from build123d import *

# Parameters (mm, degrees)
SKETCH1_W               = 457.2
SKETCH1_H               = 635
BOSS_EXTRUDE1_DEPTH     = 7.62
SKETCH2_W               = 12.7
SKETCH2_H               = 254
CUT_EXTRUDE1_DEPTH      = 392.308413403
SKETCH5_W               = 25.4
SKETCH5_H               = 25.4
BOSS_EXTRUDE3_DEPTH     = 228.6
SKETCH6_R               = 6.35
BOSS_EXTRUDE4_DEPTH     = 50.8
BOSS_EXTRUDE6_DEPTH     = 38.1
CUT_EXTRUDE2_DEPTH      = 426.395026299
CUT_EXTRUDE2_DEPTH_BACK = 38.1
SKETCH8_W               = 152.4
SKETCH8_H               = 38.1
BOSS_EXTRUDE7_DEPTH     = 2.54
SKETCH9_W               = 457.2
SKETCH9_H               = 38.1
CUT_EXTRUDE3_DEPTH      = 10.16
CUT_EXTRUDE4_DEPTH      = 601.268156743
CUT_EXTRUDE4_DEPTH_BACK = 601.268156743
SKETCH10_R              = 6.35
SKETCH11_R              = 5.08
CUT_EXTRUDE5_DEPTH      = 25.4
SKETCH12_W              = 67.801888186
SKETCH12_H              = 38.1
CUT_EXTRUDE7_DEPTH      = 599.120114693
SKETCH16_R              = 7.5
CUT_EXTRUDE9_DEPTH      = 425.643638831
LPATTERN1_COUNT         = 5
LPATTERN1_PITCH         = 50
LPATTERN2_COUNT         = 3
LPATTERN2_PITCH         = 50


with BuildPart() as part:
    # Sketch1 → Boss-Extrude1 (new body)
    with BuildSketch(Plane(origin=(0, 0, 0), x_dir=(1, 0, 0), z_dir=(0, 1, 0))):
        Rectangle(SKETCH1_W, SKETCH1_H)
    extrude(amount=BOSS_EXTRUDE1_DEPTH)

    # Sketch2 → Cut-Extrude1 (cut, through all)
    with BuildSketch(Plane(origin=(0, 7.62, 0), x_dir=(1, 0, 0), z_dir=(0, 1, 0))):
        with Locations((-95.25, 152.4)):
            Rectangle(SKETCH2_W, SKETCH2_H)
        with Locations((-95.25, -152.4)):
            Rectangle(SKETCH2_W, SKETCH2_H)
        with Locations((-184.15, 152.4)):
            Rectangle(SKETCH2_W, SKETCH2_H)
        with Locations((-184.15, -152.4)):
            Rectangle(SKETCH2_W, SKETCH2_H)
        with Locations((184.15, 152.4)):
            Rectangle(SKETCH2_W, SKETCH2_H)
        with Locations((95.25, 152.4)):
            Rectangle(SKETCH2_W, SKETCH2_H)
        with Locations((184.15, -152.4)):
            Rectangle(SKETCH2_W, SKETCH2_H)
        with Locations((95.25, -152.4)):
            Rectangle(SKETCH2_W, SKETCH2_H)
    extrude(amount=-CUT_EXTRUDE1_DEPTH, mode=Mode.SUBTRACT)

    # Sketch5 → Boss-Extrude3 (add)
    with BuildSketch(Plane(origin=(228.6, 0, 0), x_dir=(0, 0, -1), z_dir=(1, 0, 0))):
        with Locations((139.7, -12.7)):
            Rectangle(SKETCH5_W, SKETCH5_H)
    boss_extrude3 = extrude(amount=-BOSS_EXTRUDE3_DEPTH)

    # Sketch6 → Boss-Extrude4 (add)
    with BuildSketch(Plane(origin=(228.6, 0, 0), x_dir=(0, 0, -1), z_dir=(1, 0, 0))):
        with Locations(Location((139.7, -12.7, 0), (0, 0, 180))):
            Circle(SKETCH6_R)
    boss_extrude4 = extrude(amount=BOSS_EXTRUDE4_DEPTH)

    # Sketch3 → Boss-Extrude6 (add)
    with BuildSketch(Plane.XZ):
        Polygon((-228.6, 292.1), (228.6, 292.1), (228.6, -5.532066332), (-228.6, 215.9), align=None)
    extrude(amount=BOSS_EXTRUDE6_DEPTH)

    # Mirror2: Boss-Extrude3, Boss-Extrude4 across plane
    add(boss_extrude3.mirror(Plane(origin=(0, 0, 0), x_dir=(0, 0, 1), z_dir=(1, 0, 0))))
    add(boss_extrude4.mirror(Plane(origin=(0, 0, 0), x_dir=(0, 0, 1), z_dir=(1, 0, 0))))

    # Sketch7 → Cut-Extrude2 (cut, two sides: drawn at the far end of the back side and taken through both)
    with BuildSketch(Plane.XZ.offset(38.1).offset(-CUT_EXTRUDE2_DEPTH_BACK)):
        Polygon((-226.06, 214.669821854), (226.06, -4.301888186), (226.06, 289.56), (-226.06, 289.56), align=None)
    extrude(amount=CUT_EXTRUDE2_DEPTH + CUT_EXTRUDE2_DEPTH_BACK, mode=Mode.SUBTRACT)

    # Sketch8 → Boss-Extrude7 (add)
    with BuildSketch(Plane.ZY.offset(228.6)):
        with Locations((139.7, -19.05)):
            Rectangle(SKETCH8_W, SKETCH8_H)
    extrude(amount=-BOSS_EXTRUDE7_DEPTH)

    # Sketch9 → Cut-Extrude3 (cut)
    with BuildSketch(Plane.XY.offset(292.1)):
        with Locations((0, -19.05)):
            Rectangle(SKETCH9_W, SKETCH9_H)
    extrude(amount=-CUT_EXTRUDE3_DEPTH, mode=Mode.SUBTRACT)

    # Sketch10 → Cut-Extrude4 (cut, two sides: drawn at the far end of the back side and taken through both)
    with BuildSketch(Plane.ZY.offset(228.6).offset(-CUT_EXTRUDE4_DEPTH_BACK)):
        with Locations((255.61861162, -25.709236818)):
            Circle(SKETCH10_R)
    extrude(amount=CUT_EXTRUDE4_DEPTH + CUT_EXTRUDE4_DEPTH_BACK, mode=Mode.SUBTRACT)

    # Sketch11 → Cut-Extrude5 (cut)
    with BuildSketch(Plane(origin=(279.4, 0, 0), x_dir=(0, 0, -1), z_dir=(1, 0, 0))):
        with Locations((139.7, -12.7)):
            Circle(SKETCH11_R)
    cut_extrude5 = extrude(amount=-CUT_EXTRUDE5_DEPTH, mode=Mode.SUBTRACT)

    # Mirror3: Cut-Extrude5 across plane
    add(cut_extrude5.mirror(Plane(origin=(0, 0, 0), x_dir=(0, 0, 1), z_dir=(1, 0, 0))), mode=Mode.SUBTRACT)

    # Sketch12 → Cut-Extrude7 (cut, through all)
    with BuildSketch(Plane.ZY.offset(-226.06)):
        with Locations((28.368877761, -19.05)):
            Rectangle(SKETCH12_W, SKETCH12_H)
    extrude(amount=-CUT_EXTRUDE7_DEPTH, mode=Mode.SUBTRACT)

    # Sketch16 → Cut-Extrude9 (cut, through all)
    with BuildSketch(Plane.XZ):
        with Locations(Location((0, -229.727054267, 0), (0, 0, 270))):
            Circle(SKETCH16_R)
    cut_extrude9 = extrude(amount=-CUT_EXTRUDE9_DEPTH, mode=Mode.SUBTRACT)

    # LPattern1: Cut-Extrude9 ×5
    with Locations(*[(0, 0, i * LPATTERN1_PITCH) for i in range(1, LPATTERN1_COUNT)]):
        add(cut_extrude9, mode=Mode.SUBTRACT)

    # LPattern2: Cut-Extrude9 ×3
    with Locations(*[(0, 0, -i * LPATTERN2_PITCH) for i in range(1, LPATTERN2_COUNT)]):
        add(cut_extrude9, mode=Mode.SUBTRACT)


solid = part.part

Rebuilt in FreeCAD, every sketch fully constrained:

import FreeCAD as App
import Part
import Sketcher
Q = App.Units.Quantity

doc = App.newDocument("Part")
body = doc.addObject("PartDesign::Body", "Body")

sketch1 = doc.addObject("Sketcher::SketchObject", "Sketch")
body.addObject(sketch1)
sketch1.AttachmentSupport = (doc.XZ_Plane, [""])
sketch1.MapMode = "FlatFace"
sketch1.addGeometry([
    Part.LineSegment(App.Vector(-229, -318, 0), App.Vector(-229, 318, 0)),
    Part.LineSegment(App.Vector(-229, 318, 0), App.Vector(229, 318, 0)),
    Part.LineSegment(App.Vector(229, 318, 0), App.Vector(229, -318, 0)),
    Part.LineSegment(App.Vector(229, -318, 0), App.Vector(-229, -318, 0)),
], False)
sketch1.addConstraint([
    Sketcher.Constraint("Coincident", 0, 2, 1, 1),
    Sketcher.Constraint("Coincident", 1, 2, 2, 1),
    Sketcher.Constraint("Coincident", 2, 2, 3, 1),
    Sketcher.Constraint("Coincident", 3, 2, 0, 1),
    Sketcher.Constraint("Vertical", 0),
    Sketcher.Constraint("Horizontal", 1),
    Sketcher.Constraint("Vertical", 2),
    Sketcher.Constraint("Horizontal", 3),
    Sketcher.Constraint("Symmetric", 0, 2, 2, 2, -1, 1),
    Sketcher.Constraint("DistanceX", 1, 1, 1, 2, Q("18 in")),
    Sketcher.Constraint("DistanceY", 0, 1, 0, 2, Q("25 in")),
])
pad1 = doc.addObject("PartDesign::Pad", "Pad")
body.addObject(pad1)
pad1.Profile = sketch1
pad1.Length = Q("0.3 in")
pad1.Reversed = True

sketch2 = doc.addObject("Sketcher::SketchObject", "Sketch001")
body.addObject(sketch2)
sketch2.AttachmentSupport = (doc.XZ_Plane, [""])
sketch2.MapMode = "FlatFace"
sketch2.AttachmentOffset = App.Placement(App.Vector(0, 0, -0.3 * 25.4), App.Rotation())
sketch2.addGeometry([
    Part.LineSegment(App.Vector(-102, -279, 0), App.Vector(-102, -25, 0)),
    Part.LineSegment(App.Vector(-102, -25, 0), App.Vector(-89, -25, 0)),
    Part.LineSegment(App.Vector(-89, -25, 0), App.Vector(-89, -279, 0)),
    Part.LineSegment(App.Vector(-89, -279, 0), App.Vector(-102, -279, 0)),
    Part.LineSegment(App.Vector(-102, 25, 0), App.Vector(-102, 279, 0)),
    Part.LineSegment(App.Vector(-102, 279, 0), App.Vector(-89, 279, 0)),
    Part.LineSegment(App.Vector(-89, 279, 0), App.Vector(-89, 25, 0)),
    Part.LineSegment(App.Vector(-89, 25, 0), App.Vector(-102, 25, 0)),
    Part.LineSegment(App.Vector(-190, -279, 0), App.Vector(-190, -25, 0)),
    Part.LineSegment(App.Vector(-190, -25, 0), App.Vector(-178, -25, 0)),
    Part.LineSegment(App.Vector(-178, -25, 0), App.Vector(-178, -279, 0)),
    Part.LineSegment(App.Vector(-178, -279, 0), App.Vector(-190, -279, 0)),
    Part.LineSegment(App.Vector(-190, 25, 0), App.Vector(-190, 279, 0)),
    Part.LineSegment(App.Vector(-190, 279, 0), App.Vector(-178, 279, 0)),
    Part.LineSegment(App.Vector(-178, 279, 0), App.Vector(-178, 25, 0)),
    Part.LineSegment(App.Vector(-178, 25, 0), App.Vector(-190, 25, 0)),
    Part.LineSegment(App.Vector(178, -279, 0), App.Vector(178, -25, 0)),
    Part.LineSegment(App.Vector(178, -25, 0), App.Vector(190, -25, 0)),
    Part.LineSegment(App.Vector(190, -25, 0), App.Vector(190, -279, 0)),
    Part.LineSegment(App.Vector(190, -279, 0), App.Vector(178, -279, 0)),
    Part.LineSegment(App.Vector(89, -279, 0), App.Vector(89, -25, 0)),
    Part.LineSegment(App.Vector(89, -25, 0), App.Vector(102, -25, 0)),
    Part.LineSegment(App.Vector(102, -25, 0), App.Vector(102, -279, 0)),
    Part.LineSegment(App.Vector(102, -279, 0), App.Vector(89, -279, 0)),
    Part.LineSegment(App.Vector(178, 25, 0), App.Vector(178, 279, 0)),
    Part.LineSegment(App.Vector(178, 279, 0), App.Vector(190, 279, 0)),
    Part.LineSegment(App.Vector(190, 279, 0), App.Vector(190, 25, 0)),
    Part.LineSegment(App.Vector(190, 25, 0), App.Vector(178, 25, 0)),
    Part.LineSegment(App.Vector(89, 25, 0), App.Vector(89, 279, 0)),
    Part.LineSegment(App.Vector(89, 279, 0), App.Vector(102, 279, 0)),
    Part.LineSegment(App.Vector(102, 279, 0), App.Vector(102, 25, 0)),
    Part.LineSegment(App.Vector(102, 25, 0), App.Vector(89, 25, 0)),
], False)
sketch2.addConstraint([
    Sketcher.Constraint("Coincident", 0, 2, 1, 1),
    Sketcher.Constraint("Coincident", 1, 2, 2, 1),
    Sketcher.Constraint("Coincident", 2, 2, 3, 1),
    Sketcher.Constraint("Coincident", 3, 2, 0, 1),
    Sketcher.Constraint("Coincident", 4, 2, 5, 1),
    Sketcher.Constraint("Coincident", 5, 2, 6, 1),
    Sketcher.Constraint("Coincident", 6, 2, 7, 1),
    Sketcher.Constraint("Coincident", 7, 2, 4, 1),
    Sketcher.Constraint("Coincident", 8, 2, 9, 1),
    Sketcher.Constraint("Coincident", 9, 2, 10, 1),
    Sketcher.Constraint("Coincident", 10, 2, 11, 1),
    Sketcher.Constraint("Coincident", 11, 2, 8, 1),
    Sketcher.Constraint("Coincident", 12, 2, 13, 1),
    Sketcher.Constraint("Coincident", 13, 2, 14, 1),
    Sketcher.Constraint("Coincident", 14, 2, 15, 1),
    Sketcher.Constraint("Coincident", 15, 2, 12, 1),
    Sketcher.Constraint("Coincident", 16, 2, 17, 1),
    Sketcher.Constraint("Coincident", 17, 2, 18, 1),
    Sketcher.Constraint("Coincident", 18, 2, 19, 1),
    Sketcher.Constraint("Coincident", 19, 2, 16, 1),
    Sketcher.Constraint("Coincident", 20, 2, 21, 1),
    Sketcher.Constraint("Coincident", 21, 2, 22, 1),
    Sketcher.Constraint("Coincident", 22, 2, 23, 1),
    Sketcher.Constraint("Coincident", 23, 2, 20, 1),
    Sketcher.Constraint("Coincident", 24, 2, 25, 1),
    Sketcher.Constraint("Coincident", 25, 2, 26, 1),
    Sketcher.Constraint("Coincident", 26, 2, 27, 1),
    Sketcher.Constraint("Coincident", 27, 2, 24, 1),
    Sketcher.Constraint("Coincident", 28, 2, 29, 1),
    Sketcher.Constraint("Coincident", 29, 2, 30, 1),
    Sketcher.Constraint("Coincident", 30, 2, 31, 1),
    Sketcher.Constraint("Coincident", 31, 2, 28, 1),
    Sketcher.Constraint("Vertical", 0),
    Sketcher.Constraint("Horizontal", 1),
    Sketcher.Constraint("Vertical", 2),
    Sketcher.Constraint("Horizontal", 3),
    Sketcher.Constraint("Vertical", 4),
    Sketcher.Constraint("Horizontal", 5),
    Sketcher.Constraint("Vertical", 6),
    Sketcher.Constraint("Horizontal", 7),
    Sketcher.Constraint("Vertical", 8),
    Sketcher.Constraint("Horizontal", 9),
    Sketcher.Constraint("Vertical", 10),
    Sketcher.Constraint("Horizontal", 11),
    Sketcher.Constraint("Vertical", 12),
    Sketcher.Constraint("Horizontal", 13),
    Sketcher.Constraint("Vertical", 14),
    Sketcher.Constraint("Horizontal", 15),
    Sketcher.Constraint("Vertical", 16),
    Sketcher.Constraint("Horizontal", 17),
    Sketcher.Constraint("Vertical", 18),
    Sketcher.Constraint("Horizontal", 19),
    Sketcher.Constraint("Vertical", 20),
    Sketcher.Constraint("Horizontal", 21),
    Sketcher.Constraint("Vertical", 22),
    Sketcher.Constraint("Horizontal", 23),
    Sketcher.Constraint("Vertical", 24),
    Sketcher.Constraint("Horizontal", 25),
    Sketcher.Constraint("Vertical", 26),
    Sketcher.Constraint("Horizontal", 27),
    Sketcher.Constraint("Vertical", 28),
    Sketcher.Constraint("Horizontal", 29),
    Sketcher.Constraint("Vertical", 30),
    Sketcher.Constraint("Horizontal", 31),
    Sketcher.Constraint("Symmetric", 14, 2, 16, 2, -1, 1),
    Sketcher.Constraint("Symmetric", 12, 2, 18, 2, -1, 1),
    Sketcher.Constraint("Symmetric", 6, 2, 20, 2, -1, 1),
    Sketcher.Constraint("Symmetric", 4, 2, 22, 2, -1, 1),
    Sketcher.Constraint("Symmetric", 10, 2, 24, 2, -1, 1),
    Sketcher.Constraint("Symmetric", 8, 2, 26, 2, -1, 1),
    Sketcher.Constraint("Symmetric", 2, 2, 28, 2, -1, 1),
    Sketcher.Constraint("Symmetric", 0, 2, 30, 2, -1, 1),
    Sketcher.Constraint("Symmetric", 9, 2, 16, 2, -2),
    Sketcher.Constraint("Symmetric", 11, 2, 18, 2, -2),
    Sketcher.Constraint("Symmetric", 1, 2, 20, 2, -2),
    Sketcher.Constraint("Symmetric", 3, 2, 22, 2, -2),
    Sketcher.Constraint("Horizontal", 1, 2, 8, 2),
    Sketcher.Constraint("Horizontal", 3, 2, 10, 2),
    Sketcher.Constraint("Equal", 7, 9),
    Sketcher.Constraint("DistanceY", 0, 1, 0, 2, Q("10 in")),
    Sketcher.Constraint("DistanceX", 1, 1, 1, 2, Q("0.5 in")),
    Sketcher.Constraint("DistanceX", 0, 2, -1, 1, Q("4 in")),
    Sketcher.Constraint("DistanceY", 0, 2, -1, 1, Q("1 in")),
    Sketcher.Constraint("DistanceX", 9, 2, -1, 1, Q("7 in")),
])
pocket1 = doc.addObject("PartDesign::Pocket", "Pocket")
body.addObject(pocket1)
pocket1.Profile = sketch2
pocket1.Type = "ThroughAll"
pocket1.Reversed = True

sketch3 = doc.addObject("Sketcher::SketchObject", "Sketch002")
body.addObject(sketch3)
sketch3.AttachmentSupport = (doc.YZ_Plane, [""])
sketch3.MapMode = "FlatFace"
sketch3.AttachmentOffset = App.Placement(App.Vector(0, 0, 9 * 25.4), App.Rotation())
sketch3.addGeometry([
    Part.LineSegment(App.Vector(0, -127, 0), App.Vector(-25, -127, 0)),
    Part.LineSegment(App.Vector(-25, -127, 0), App.Vector(-25, -152, 0)),
    Part.LineSegment(App.Vector(-25, -152, 0), App.Vector(0, -152, 0)),
    Part.LineSegment(App.Vector(0, -152, 0), App.Vector(0, -127, 0)),
], False)
sketch3.addConstraint([
    Sketcher.Constraint("Coincident", 0, 2, 1, 1),
    Sketcher.Constraint("Coincident", 1, 2, 2, 1),
    Sketcher.Constraint("Coincident", 2, 2, 3, 1),
    Sketcher.Constraint("Coincident", 3, 2, 0, 1),
    Sketcher.Constraint("Horizontal", 0),
    Sketcher.Constraint("Vertical", 1),
    Sketcher.Constraint("Horizontal", 2),
    Sketcher.Constraint("Vertical", 3),
    Sketcher.Constraint("PointOnObject", 2, 2, -2),
    Sketcher.Constraint("Equal", 2, 1),
    Sketcher.Constraint("DistanceX", 0, 2, 0, 1, Q("1 in")),
    Sketcher.Constraint("DistanceY", 0, 2, -1, 1, Q("5 in")),
])
pad2 = doc.addObject("PartDesign::Pad", "Pad001")
body.addObject(pad2)
pad2.Profile = sketch3
pad2.Length = Q("9 in")
pad2.Reversed = True

sketch4 = doc.addObject("Sketcher::SketchObject", "Sketch003")
body.addObject(sketch4)
sketch4.AttachmentSupport = (doc.YZ_Plane, [""])
sketch4.MapMode = "FlatFace"
sketch4.AttachmentOffset = App.Placement(App.Vector(0, 0, 9 * 25.4), App.Rotation())
sketch4.addGeometry(Part.Circle(App.Vector(-13, -140, 0), App.Vector(0, 0, 1), 6), False)
sketch4.addConstraint([
    Sketcher.Constraint("Diameter", 0, Q("0.5 in")),
    Sketcher.Constraint("DistanceX", 0, 3, -1, 1, Q("0.5 in")),
    Sketcher.Constraint("DistanceY", 0, 3, -1, 1, Q("5.5 in")),
])
pad3 = doc.addObject("PartDesign::Pad", "Pad002")
body.addObject(pad3)
pad3.Profile = sketch4
pad3.Length = Q("2 in")

sketch5 = doc.addObject("Sketcher::SketchObject", "Sketch004")
body.addObject(sketch5)
sketch5.AttachmentSupport = (doc.XZ_Plane, [""])
sketch5.MapMode = "FlatFace"
sketch5.addGeometry([
    Part.LineSegment(App.Vector(229, 292, 0), App.Vector(-229, 292, 0)),
    Part.LineSegment(App.Vector(-229, 292, 0), App.Vector(-229, 216, 0)),
    Part.LineSegment(App.Vector(-229, 216, 0), App.Vector(229, -6, 0)),
    Part.LineSegment(App.Vector(229, -6, 0), App.Vector(229, 292, 0)),
], False)
sketch5.addConstraint([
    Sketcher.Constraint("Coincident", 0, 2, 1, 1),
    Sketcher.Constraint("Coincident", 1, 2, 2, 1),
    Sketcher.Constraint("Coincident", 2, 2, 3, 1),
    Sketcher.Constraint("Coincident", 3, 2, 0, 1),
    Sketcher.Constraint("Horizontal", 0),
    Sketcher.Constraint("Vertical", 1),
    Sketcher.Constraint("Vertical", 3),
    Sketcher.Constraint("DistanceX", 0, 2, 0, 1, Q("18 in")),
    Sketcher.Constraint("DistanceY", 1, 2, 1, 1, Q("3 in")),
    Sketcher.Constraint("Distance", 2, Q("20 in")),
    Sketcher.Constraint("DistanceX", 0, 2, -1, 1, Q("9 in")),
    Sketcher.Constraint("DistanceY", -1, 1, 0, 2, Q("11.5 in")),
])
pad4 = doc.addObject("PartDesign::Pad", "Pad003")
body.addObject(pad4)
pad4.Profile = sketch5
pad4.Length = Q("1.5 in")
doc.recompute()

mirrored = doc.addObject("PartDesign::Mirrored", "Mirrored")
body.addObject(mirrored)
mirrored.Originals = [pad2, pad3]
mirrored.MirrorPlane = (doc.YZ_Plane, [""])
body.Tip = mirrored

sketch6 = doc.addObject("Sketcher::SketchObject", "Sketch005")
body.addObject(sketch6)
sketch6.AttachmentSupport = (doc.XZ_Plane, [""])
sketch6.MapMode = "FlatFace"
sketch6.AttachmentOffset = App.Placement(App.Vector(0, 0, 1.5 * 25.4), App.Rotation())
sketch6.addGeometry([
    Part.LineSegment(App.Vector(-226, 215, 0), App.Vector(226, -4, 0)),
    Part.LineSegment(App.Vector(226, -4, 0), App.Vector(226, 290, 0)),
    Part.LineSegment(App.Vector(226, 290, 0), App.Vector(-226, 290, 0)),
    Part.LineSegment(App.Vector(-226, 290, 0), App.Vector(-226, 215, 0)),
], False)
sketch6.addConstraint([
    Sketcher.Constraint("Coincident", 0, 2, 1, 1),
    Sketcher.Constraint("Coincident", 1, 2, 2, 1),
    Sketcher.Constraint("Coincident", 2, 2, 3, 1),
    Sketcher.Constraint("Coincident", 3, 2, 0, 1),
    Sketcher.Constraint("Vertical", 1),
    Sketcher.Constraint("Horizontal", 2),
    Sketcher.Constraint("Vertical", 3),
    Sketcher.Constraint("DistanceX", 2, 2, 2, 1, Q("17.8 in")),
    Sketcher.Constraint("DistanceX", -1, 1, 0, 2, Q("8.9 in")),
    Sketcher.Constraint("DistanceY", -1, 1, 1, 2, Q("11.4 in")),
    Sketcher.Constraint("DistanceY", 1, 1, 1, 2, 293.861888),
    Sketcher.Constraint("DistanceY", 3, 2, 3, 1, 74.890178),
])
pocket2 = doc.addObject("PartDesign::Pocket", "Pocket001")
body.addObject(pocket2)
pocket2.Profile = sketch6
pocket2.Type = "TwoLengths"
pocket2.Length = 426.395026
pocket2.Length2 = Q("1.5 in")
pocket2.Reversed = True

sketch7 = doc.addObject("Sketcher::SketchObject", "Sketch006")
body.addObject(sketch7)
sketch7.AttachmentSupport = (doc.YZ_Plane, [""])
sketch7.MapMode = "FlatFace"
sketch7.AttachmentOffset = App.Placement(App.Vector(0, 0, -9 * 25.4), App.Rotation())
sketch7.addGeometry([
    Part.LineSegment(App.Vector(0, 64, 0), App.Vector(-38, 64, 0)),
    Part.LineSegment(App.Vector(-38, 64, 0), App.Vector(-38, 216, 0)),
    Part.LineSegment(App.Vector(-38, 216, 0), App.Vector(0, 216, 0)),
    Part.LineSegment(App.Vector(0, 216, 0), App.Vector(0, 64, 0)),
], False)
sketch7.addConstraint([
    Sketcher.Constraint("Coincident", 0, 2, 1, 1),
    Sketcher.Constraint("Coincident", 1, 2, 2, 1),
    Sketcher.Constraint("Coincident", 2, 2, 3, 1),
    Sketcher.Constraint("Coincident", 3, 2, 0, 1),
    Sketcher.Constraint("Horizontal", 0),
    Sketcher.Constraint("Vertical", 1),
    Sketcher.Constraint("Horizontal", 2),
    Sketcher.Constraint("Vertical", 3),
    Sketcher.Constraint("PointOnObject", 2, 2, -2),
    Sketcher.Constraint("DistanceY", 1, 1, 1, 2, Q("6 in")),
    Sketcher.Constraint("DistanceX", 0, 2, 0, 1, Q("1.5 in")),
    Sketcher.Constraint("DistanceY", -1, 1, 0, 2, Q("2.5 in")),
])
pad5 = doc.addObject("PartDesign::Pad", "Pad004")
body.addObject(pad5)
pad5.Profile = sketch7
pad5.Length = Q("0.1 in")

sketch8 = doc.addObject("Sketcher::SketchObject", "Sketch007")
body.addObject(sketch8)
sketch8.AttachmentSupport = (doc.XY_Plane, [""])
sketch8.MapMode = "FlatFace"
sketch8.AttachmentOffset = App.Placement(App.Vector(0, 0, 11.5 * 25.4), App.Rotation())
sketch8.addGeometry([
    Part.LineSegment(App.Vector(-229, 0, 0), App.Vector(-229, -38, 0)),
    Part.LineSegment(App.Vector(-229, -38, 0), App.Vector(229, -38, 0)),
    Part.LineSegment(App.Vector(229, -38, 0), App.Vector(229, 0, 0)),
    Part.LineSegment(App.Vector(229, 0, 0), App.Vector(-229, 0, 0)),
], False)
sketch8.addConstraint([
    Sketcher.Constraint("Coincident", 0, 2, 1, 1),
    Sketcher.Constraint("Coincident", 1, 2, 2, 1),
    Sketcher.Constraint("Coincident", 2, 2, 3, 1),
    Sketcher.Constraint("Coincident", 3, 2, 0, 1),
    Sketcher.Constraint("Vertical", 0),
    Sketcher.Constraint("Horizontal", 1),
    Sketcher.Constraint("Vertical", 2),
    Sketcher.Constraint("Horizontal", 3),
    Sketcher.Constraint("Symmetric", 2, 2, 3, 2, -1, 1),
    Sketcher.Constraint("DistanceX", 1, 1, 1, 2, Q("18 in")),
    Sketcher.Constraint("DistanceY", 0, 2, 0, 1, Q("1.5 in")),
])
pocket3 = doc.addObject("PartDesign::Pocket", "Pocket002")
body.addObject(pocket3)
pocket3.Profile = sketch8
pocket3.Length = Q("0.4 in")

sketch9 = doc.addObject("Sketcher::SketchObject", "Sketch008")
body.addObject(sketch9)
sketch9.AttachmentSupport = (doc.YZ_Plane, [""])
sketch9.MapMode = "FlatFace"
sketch9.AttachmentOffset = App.Placement(App.Vector(0, 0, -9 * 25.4), App.Rotation())
sketch9.addGeometry(Part.Circle(App.Vector(-26, 256, 0), App.Vector(0, 0, 1), 6), False)
sketch9.addConstraint([
    Sketcher.Constraint("Diameter", 0, Q("0.5 in")),
    Sketcher.Constraint("DistanceY", -1, 1, 0, 3, 255.618612),
    Sketcher.Constraint("DistanceX", 0, 3, -1, 1, 25.709237),
])
pocket4 = doc.addObject("PartDesign::Pocket", "Pocket003")
body.addObject(pocket4)
pocket4.Profile = sketch9
pocket4.Type = "ThroughAll"
pocket4.Midplane = True

sketch10 = doc.addObject("Sketcher::SketchObject", "Sketch009")
body.addObject(sketch10)
sketch10.AttachmentSupport = (doc.YZ_Plane, [""])
sketch10.MapMode = "FlatFace"
sketch10.AttachmentOffset = App.Placement(App.Vector(0, 0, 11 * 25.4), App.Rotation())
sketch10.addGeometry(Part.Circle(App.Vector(-13, -140, 0), App.Vector(0, 0, 1), 5), False)
sketch10.addConstraint([
    Sketcher.Constraint("Diameter", 0, Q("0.4 in")),
    Sketcher.Constraint("DistanceX", 0, 3, -1, 1, Q("0.5 in")),
    Sketcher.Constraint("DistanceY", 0, 3, -1, 1, Q("5.5 in")),
])
pocket5 = doc.addObject("PartDesign::Pocket", "Pocket004")
body.addObject(pocket5)
pocket5.Profile = sketch10
pocket5.Length = Q("1 in")
doc.recompute()

mirrored2 = doc.addObject("PartDesign::Mirrored", "Mirrored001")
body.addObject(mirrored2)
mirrored2.Originals = [pocket5]
mirrored2.MirrorPlane = (doc.YZ_Plane, [""])
body.Tip = mirrored2

sketch11 = doc.addObject("Sketcher::SketchObject", "Sketch010")
body.addObject(sketch11)
sketch11.AttachmentSupport = (doc.YZ_Plane, [""])
sketch11.MapMode = "FlatFace"
sketch11.AttachmentOffset = App.Placement(App.Vector(0, 0, 8.9 * 25.4), App.Rotation())
sketch11.addGeometry([
    Part.LineSegment(App.Vector(0, -6, 0), App.Vector(-38, -6, 0)),
    Part.LineSegment(App.Vector(-38, -6, 0), App.Vector(-38, 62, 0)),
    Part.LineSegment(App.Vector(-38, 62, 0), App.Vector(0, 62, 0)),
    Part.LineSegment(App.Vector(0, 62, 0), App.Vector(0, -6, 0)),
], False)
sketch11.addConstraint([
    Sketcher.Constraint("Coincident", 0, 2, 1, 1),
    Sketcher.Constraint("Coincident", 1, 2, 2, 1),
    Sketcher.Constraint("Coincident", 2, 2, 3, 1),
    Sketcher.Constraint("Coincident", 3, 2, 0, 1),
    Sketcher.Constraint("Horizontal", 0),
    Sketcher.Constraint("Vertical", 1),
    Sketcher.Constraint("Horizontal", 2),
    Sketcher.Constraint("Vertical", 3),
    Sketcher.Constraint("PointOnObject", 2, 2, -2),
    Sketcher.Constraint("DistanceX", 0, 2, 0, 1, Q("1.5 in")),
    Sketcher.Constraint("DistanceY", 1, 1, 1, 2, 67.801888),
    Sketcher.Constraint("DistanceY", -1, 1, 1, 2, 62.269822),
])
pocket6 = doc.addObject("PartDesign::Pocket", "Pocket005")
body.addObject(pocket6)
pocket6.Profile = sketch11
pocket6.Type = "ThroughAll"
pocket6.Reversed = True

sketch12 = doc.addObject("Sketcher::SketchObject", "Sketch011")
body.addObject(sketch12)
sketch12.AttachmentSupport = (doc.XZ_Plane, [""])
sketch12.MapMode = "FlatFace"
sketch12.addGeometry(Part.Circle(App.Vector(0, -230, 0), App.Vector(0, 0, 1), 8), False)
sketch12.addConstraint([
    Sketcher.Constraint("PointOnObject", 0, 3, -2),
    Sketcher.Constraint("Diameter", 0, 15.0),
    Sketcher.Constraint("DistanceY", 0, 3, -1, 1, 229.727054),
])
pocket7 = doc.addObject("PartDesign::Pocket", "Pocket006")
body.addObject(pocket7)
pocket7.Profile = sketch12
pocket7.Type = "ThroughAll"
doc.recompute()

linearpattern = doc.addObject("PartDesign::LinearPattern", "LinearPattern")
body.addObject(linearpattern)
linearpattern.Originals = [pocket7]
linearpattern.Direction = (doc.Z_Axis, [""])
linearpattern.Mode = "offset"
linearpattern.Offset = 50
linearpattern.Occurrences = 5
body.Tip = linearpattern
doc.recompute()

linearpattern2 = doc.addObject("PartDesign::LinearPattern", "LinearPattern001")
body.addObject(linearpattern2)
linearpattern2.Originals = [pocket7]
linearpattern2.Direction = (doc.Z_Axis, [""])
linearpattern2.Mode = "offset"
linearpattern2.Offset = 50
linearpattern2.Occurrences = 3
linearpattern2.Reversed = True
body.Tip = linearpattern2

doc.recompute()
